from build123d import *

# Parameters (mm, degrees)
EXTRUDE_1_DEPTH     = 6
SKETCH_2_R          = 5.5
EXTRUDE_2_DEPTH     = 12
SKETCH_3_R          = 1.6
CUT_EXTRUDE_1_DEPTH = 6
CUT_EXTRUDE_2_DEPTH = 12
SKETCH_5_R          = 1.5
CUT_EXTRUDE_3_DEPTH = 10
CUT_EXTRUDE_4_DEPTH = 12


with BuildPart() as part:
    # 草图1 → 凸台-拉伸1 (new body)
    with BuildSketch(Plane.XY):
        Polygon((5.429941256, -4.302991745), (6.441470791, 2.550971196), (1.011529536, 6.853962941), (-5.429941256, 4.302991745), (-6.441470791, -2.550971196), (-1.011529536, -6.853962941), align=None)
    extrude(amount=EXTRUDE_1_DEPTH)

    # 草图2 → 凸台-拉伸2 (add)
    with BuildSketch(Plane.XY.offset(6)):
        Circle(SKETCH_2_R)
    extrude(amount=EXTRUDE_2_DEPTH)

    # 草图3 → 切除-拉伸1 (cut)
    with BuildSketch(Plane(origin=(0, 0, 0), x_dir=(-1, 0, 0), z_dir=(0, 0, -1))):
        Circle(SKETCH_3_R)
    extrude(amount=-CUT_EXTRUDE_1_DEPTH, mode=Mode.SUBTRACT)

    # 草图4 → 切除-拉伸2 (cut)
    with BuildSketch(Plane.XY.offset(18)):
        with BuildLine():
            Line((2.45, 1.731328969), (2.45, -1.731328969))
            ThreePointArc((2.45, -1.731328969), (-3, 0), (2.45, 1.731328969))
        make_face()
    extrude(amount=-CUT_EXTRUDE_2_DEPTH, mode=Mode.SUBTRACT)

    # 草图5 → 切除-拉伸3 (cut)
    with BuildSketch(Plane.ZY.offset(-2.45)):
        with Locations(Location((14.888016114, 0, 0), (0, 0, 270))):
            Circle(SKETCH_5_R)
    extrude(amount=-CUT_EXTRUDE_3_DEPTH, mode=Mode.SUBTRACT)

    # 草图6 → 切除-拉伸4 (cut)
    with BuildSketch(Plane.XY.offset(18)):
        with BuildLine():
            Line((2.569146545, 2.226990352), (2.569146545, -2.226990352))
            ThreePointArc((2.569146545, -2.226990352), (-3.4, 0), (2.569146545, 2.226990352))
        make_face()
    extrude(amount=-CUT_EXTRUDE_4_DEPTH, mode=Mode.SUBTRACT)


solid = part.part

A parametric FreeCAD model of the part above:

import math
import FreeCAD as App
import Part
import Sketcher

V = App.Vector
Q = App.Units.Quantity

doc = App.newDocument("Part")
body = doc.addObject("PartDesign::Body", "Body")

# Sketch on XY plane
sketch1 = body.newObject("Sketcher::SketchObject", "Sketch")
sketch1.AttachmentSupport = (doc.getObject("XY_Plane"), [""])
sketch1.MapMode = "FlatFace"
sketch1.addGeometry([
    Part.LineSegment(V(5, -4, 0), V(6, 3, 0)),  # 0
    Part.LineSegment(V(6, 3, 0), V(1, 7, 0)),  # 1
    Part.LineSegment(V(1, 7, 0), V(-5, 4, 0)),  # 2
    Part.LineSegment(V(-5, 4, 0), V(-6, -3, 0)),  # 3
    Part.LineSegment(V(-6, -3, 0), V(-1, -7, 0)),  # 4
    Part.LineSegment(V(-1, -7, 0), V(5, -4, 0)),  # 5
], False)
sketch1.addConstraint([
    Sketcher.Constraint("Coincident", 0, 2, 1, 1),
    Sketcher.Constraint("Coincident", 1, 2, 2, 1),
    Sketcher.Constraint("Coincident", 2, 2, 3, 1),
    Sketcher.Constraint("Coincident", 3, 2, 4, 1),
    Sketcher.Constraint("Coincident", 4, 2, 5, 1),
    Sketcher.Constraint("Coincident", 5, 2, 0, 1),
    Sketcher.Constraint("Symmetric", 0, 2, 3, 2, -1, 1),
    Sketcher.Constraint("Symmetric", 1, 2, 4, 2, -1, 1),
    Sketcher.Constraint("Symmetric", 2, 2, 5, 2, -1, 1),
    Sketcher.Constraint("Equal", 0, 1),
    Sketcher.Constraint("Equal", 1, 2),
    Sketcher.Constraint("DistanceX", 3, 2, 1, 2, Q("7.453 mm")),
    Sketcher.Constraint("DistanceX", -1, 1, 0, 2, Q("6.441471 mm")),
    Sketcher.Constraint("DistanceY", -1, 1, 0, 2, Q("2.550971 mm")),
    Sketcher.Constraint("DistanceX", 2, 2, -1, 1, Q("5.429941 mm")),
])
pad1 = body.newObject("PartDesign::Pad", "Pad")
pad1.Profile = sketch1
pad1.Length = 6

# Sketch on XY plane
sketch2 = body.newObject("Sketcher::SketchObject", "Sketch001")
sketch2.AttachmentSupport = (doc.getObject("XY_Plane"), [""])
sketch2.MapMode = "FlatFace"
sketch2.AttachmentOffset = App.Placement(V(0, 0, 6), App.Rotation())
sketch2.addGeometry(Part.Circle(V(0, 0, 0), V(0, 0, 1), 6), False)
sketch2.addConstraint([
    Sketcher.Constraint("Coincident", 0, 3, -1, 1),
    Sketcher.Constraint("Diameter", 0, Q("11 mm")),
])
pad2 = body.newObject("PartDesign::Pad", "Pad001")
pad2.Profile = sketch2
pad2.Length = 12

# Sketch on XY plane
sketch3 = body.newObject("Sketcher::SketchObject", "Sketch002")
sketch3.AttachmentSupport = (doc.getObject("XY_Plane"), [""])
sketch3.MapMode = "FlatFace"
sketch3.addGeometry(Part.Circle(V(0, 0, 0), V(0, 0, 1), 1.6), False)
sketch3.addConstraint([
    Sketcher.Constraint("Coincident", 0, 3, -1, 1),
    Sketcher.Constraint("Diameter", 0, Q("3.2 mm")),
])
pocket1 = body.newObject("PartDesign::Pocket", "Pocket")
pocket1.Profile = sketch3
pocket1.Length = 6
pocket1.Reversed = True

# Sketch on XY plane
sketch4 = body.newObject("Sketcher::SketchObject", "Sketch003")
sketch4.AttachmentSupport = (doc.getObject("XY_Plane"), [""])
sketch4.MapMode = "FlatFace"
sketch4.AttachmentOffset = App.Placement(V(0, 0, 18), App.Rotation())
sketch4.addGeometry([
    Part.LineSegment(V(2.5, -1.7, 0), V(2.5, 1.7, 0)),
    Part.ArcOfCircle(Part.Circle(V(0, 0, 0), V(0, 0, 1), 3), math.radians(35), math.radians(325)),
], False)
sketch4.addConstraint([
    Sketcher.Constraint("Coincident", 0, 1, 1, 2),
    Sketcher.Constraint("Coincident", 1, 1, 0, 2),
    Sketcher.Constraint("Vertical", 0),
    Sketcher.Constraint("Coincident", 1, 3, -1, 1),
    Sketcher.Constraint("Radius", 1, Q("3 mm")),
    Sketcher.Constraint("DistanceX", -1, 1, 0, 1, Q("2.45 mm")),
])
pocket2 = body.newObject("PartDesign::Pocket", "Pocket001")
pocket2.Profile = sketch4
pocket2.Length = 12

# Sketch on YZ plane
sketch5 = body.newObject("Sketcher::SketchObject", "Sketch004")
sketch5.AttachmentSupport = (doc.getObject("YZ_Plane"), [""])
sketch5.MapMode = "FlatFace"
sketch5.AttachmentOffset = App.Placement(V(0, 0, 2.45), App.Rotation())
sketch5.addGeometry(Part.Circle(V(0, 14.9, 0), V(0, 0, 1), 1.5), False)
sketch5.addConstraint([
    Sketcher.Constraint("PointOnObject", 0, 3, -2),
    Sketcher.Constraint("Diameter", 0, Q("3 mm")),
    Sketcher.Constraint("DistanceY", -1, 1, 0, 3, Q("14.888016 mm")),
])
pocket3 = body.newObject("PartDesign::Pocket", "Pocket002")
pocket3.Profile = sketch5
pocket3.Length = 10
pocket3.Reversed = True

# Sketch on XY plane
sketch6 = body.newObject("Sketcher::SketchObject", "Sketch005")
sketch6.AttachmentSupport = (doc.getObject("XY_Plane"), [""])
sketch6.MapMode = "FlatFace"
sketch6.AttachmentOffset = App.Placement(V(0, 0, 18), App.Rotation())
sketch6.addGeometry([
    Part.LineSegment(V(2.6, -2.2, 0), V(2.6, 2.2, 0)),
    Part.ArcOfCircle(Part.Circle(V(0, 0, 0), V(0, 0, 1), 3.4), math.radians(41), math.radians(319)),
], False)
sketch6.addConstraint([
    Sketcher.Constraint("Coincident", 0, 1, 1, 2),
    Sketcher.Constraint("Coincident", 1, 1, 0, 2),
    Sketcher.Constraint("Vertical", 0),
    Sketcher.Constraint("Coincident", 1, 3, -1, 1),
    Sketcher.Constraint("Radius", 1, Q("3.4 mm")),
    Sketcher.Constraint("DistanceY", 0, 1, 0, 2, Q("4.453981 mm")),
])
pocket4 = body.newObject("PartDesign::Pocket", "Pocket003")
pocket4.Profile = sketch6
pocket4.Length = 12

doc.recompute()
